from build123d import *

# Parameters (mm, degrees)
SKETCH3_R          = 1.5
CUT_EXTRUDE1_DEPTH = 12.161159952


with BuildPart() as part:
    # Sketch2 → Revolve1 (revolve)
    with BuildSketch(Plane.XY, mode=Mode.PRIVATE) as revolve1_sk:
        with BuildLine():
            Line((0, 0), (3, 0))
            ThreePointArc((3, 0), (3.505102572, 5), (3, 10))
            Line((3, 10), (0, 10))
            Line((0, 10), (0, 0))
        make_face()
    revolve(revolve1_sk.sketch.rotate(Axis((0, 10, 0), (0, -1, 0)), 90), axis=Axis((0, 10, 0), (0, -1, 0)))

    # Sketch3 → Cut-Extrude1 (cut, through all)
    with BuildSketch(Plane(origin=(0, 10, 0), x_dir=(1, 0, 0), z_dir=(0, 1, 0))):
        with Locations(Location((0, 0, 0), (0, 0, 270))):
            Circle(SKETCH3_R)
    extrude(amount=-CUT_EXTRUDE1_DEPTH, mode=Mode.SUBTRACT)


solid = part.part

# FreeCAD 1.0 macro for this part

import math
import FreeCAD as App
import Part
import Sketcher
from FreeCAD import Vector
Q = App.Units.Quantity

doc = App.newDocument("Part")
body = doc.addObject("PartDesign::Body", "Body")

sketch1 = doc.addObject("Sketcher::SketchObject", "Sketch")
body.addObject(sketch1)
sketch1.AttachmentSupport = (doc.XY_Plane, [""])
sketch1.MapMode = "FlatFace"
sketch1.addGeometry([
    Part.LineSegment(Vector(0, 0, 0), Vector(3, 0, 0)),
    Part.ArcOfCircle(Part.Circle(Vector(-21.494897, 5, 0), Vector(0, 0, 1), 25), math.radians(-11.536959), math.radians(11.536959)),
    Part.LineSegment(Vector(3, 10, 0), Vector(0, 10, 0)),
    Part.LineSegment(Vector(0, 10, 0), Vector(0, 0, 0)),
], False)
sketch1.addConstraint([
    Sketcher.Constraint("Coincident", 0, 2, 1, 1),
    Sketcher.Constraint("Coincident", 1, 2, 2, 1),
    Sketcher.Constraint("Coincident", 2, 2, 3, 1),
    Sketcher.Constraint("Coincident", 3, 2, 0, 1),
    Sketcher.Constraint("Horizontal", 0),
    Sketcher.Constraint("Horizontal", 2),
    Sketcher.Constraint("Vertical", 3),
    Sketcher.Constraint("Coincident", 3, 2, -1, 1),
    Sketcher.Constraint("Vertical", 0, 2, 1, 2),
    Sketcher.Constraint("Radius", 1, Q("25 mm")),
    Sketcher.Constraint("DistanceX", 0, 1, 0, 2, Q("3 mm")),
    Sketcher.Constraint("DistanceY", 3, 2, 3, 1, Q("10 mm")),
])
revolution = doc.addObject("PartDesign::Revolution", "Revolution")
body.addObject(revolution)
revolution.Profile = sketch1
revolution.ReferenceAxis = (sketch1, ["V_Axis"])
revolution.Angle = 360

sketch2 = doc.addObject("Sketcher::SketchObject", "Sketch001")
body.addObject(sketch2)
sketch2.AttachmentSupport = (doc.XZ_Plane, [""])
sketch2.MapMode = "FlatFace"
sketch2.AttachmentOffset = App.Placement(Vector(0, 0, -10), App.Rotation())
sketch2.addGeometry(Part.Circle(Vector(0, 0, 0), Vector(0, 0, 1), 1.5), False)
sketch2.addConstraint([
    Sketcher.Constraint("Coincident", 0, 3, -1, 1),
    Sketcher.Constraint("Diameter", 0, Q("3 mm")),
])
pocket1 = doc.addObject("PartDesign::Pocket", "Pocket")
body.addObject(pocket1)
pocket1.Profile = sketch2
pocket1.Type = "ThroughAll"
pocket1.Reversed = True

doc.recompute()
